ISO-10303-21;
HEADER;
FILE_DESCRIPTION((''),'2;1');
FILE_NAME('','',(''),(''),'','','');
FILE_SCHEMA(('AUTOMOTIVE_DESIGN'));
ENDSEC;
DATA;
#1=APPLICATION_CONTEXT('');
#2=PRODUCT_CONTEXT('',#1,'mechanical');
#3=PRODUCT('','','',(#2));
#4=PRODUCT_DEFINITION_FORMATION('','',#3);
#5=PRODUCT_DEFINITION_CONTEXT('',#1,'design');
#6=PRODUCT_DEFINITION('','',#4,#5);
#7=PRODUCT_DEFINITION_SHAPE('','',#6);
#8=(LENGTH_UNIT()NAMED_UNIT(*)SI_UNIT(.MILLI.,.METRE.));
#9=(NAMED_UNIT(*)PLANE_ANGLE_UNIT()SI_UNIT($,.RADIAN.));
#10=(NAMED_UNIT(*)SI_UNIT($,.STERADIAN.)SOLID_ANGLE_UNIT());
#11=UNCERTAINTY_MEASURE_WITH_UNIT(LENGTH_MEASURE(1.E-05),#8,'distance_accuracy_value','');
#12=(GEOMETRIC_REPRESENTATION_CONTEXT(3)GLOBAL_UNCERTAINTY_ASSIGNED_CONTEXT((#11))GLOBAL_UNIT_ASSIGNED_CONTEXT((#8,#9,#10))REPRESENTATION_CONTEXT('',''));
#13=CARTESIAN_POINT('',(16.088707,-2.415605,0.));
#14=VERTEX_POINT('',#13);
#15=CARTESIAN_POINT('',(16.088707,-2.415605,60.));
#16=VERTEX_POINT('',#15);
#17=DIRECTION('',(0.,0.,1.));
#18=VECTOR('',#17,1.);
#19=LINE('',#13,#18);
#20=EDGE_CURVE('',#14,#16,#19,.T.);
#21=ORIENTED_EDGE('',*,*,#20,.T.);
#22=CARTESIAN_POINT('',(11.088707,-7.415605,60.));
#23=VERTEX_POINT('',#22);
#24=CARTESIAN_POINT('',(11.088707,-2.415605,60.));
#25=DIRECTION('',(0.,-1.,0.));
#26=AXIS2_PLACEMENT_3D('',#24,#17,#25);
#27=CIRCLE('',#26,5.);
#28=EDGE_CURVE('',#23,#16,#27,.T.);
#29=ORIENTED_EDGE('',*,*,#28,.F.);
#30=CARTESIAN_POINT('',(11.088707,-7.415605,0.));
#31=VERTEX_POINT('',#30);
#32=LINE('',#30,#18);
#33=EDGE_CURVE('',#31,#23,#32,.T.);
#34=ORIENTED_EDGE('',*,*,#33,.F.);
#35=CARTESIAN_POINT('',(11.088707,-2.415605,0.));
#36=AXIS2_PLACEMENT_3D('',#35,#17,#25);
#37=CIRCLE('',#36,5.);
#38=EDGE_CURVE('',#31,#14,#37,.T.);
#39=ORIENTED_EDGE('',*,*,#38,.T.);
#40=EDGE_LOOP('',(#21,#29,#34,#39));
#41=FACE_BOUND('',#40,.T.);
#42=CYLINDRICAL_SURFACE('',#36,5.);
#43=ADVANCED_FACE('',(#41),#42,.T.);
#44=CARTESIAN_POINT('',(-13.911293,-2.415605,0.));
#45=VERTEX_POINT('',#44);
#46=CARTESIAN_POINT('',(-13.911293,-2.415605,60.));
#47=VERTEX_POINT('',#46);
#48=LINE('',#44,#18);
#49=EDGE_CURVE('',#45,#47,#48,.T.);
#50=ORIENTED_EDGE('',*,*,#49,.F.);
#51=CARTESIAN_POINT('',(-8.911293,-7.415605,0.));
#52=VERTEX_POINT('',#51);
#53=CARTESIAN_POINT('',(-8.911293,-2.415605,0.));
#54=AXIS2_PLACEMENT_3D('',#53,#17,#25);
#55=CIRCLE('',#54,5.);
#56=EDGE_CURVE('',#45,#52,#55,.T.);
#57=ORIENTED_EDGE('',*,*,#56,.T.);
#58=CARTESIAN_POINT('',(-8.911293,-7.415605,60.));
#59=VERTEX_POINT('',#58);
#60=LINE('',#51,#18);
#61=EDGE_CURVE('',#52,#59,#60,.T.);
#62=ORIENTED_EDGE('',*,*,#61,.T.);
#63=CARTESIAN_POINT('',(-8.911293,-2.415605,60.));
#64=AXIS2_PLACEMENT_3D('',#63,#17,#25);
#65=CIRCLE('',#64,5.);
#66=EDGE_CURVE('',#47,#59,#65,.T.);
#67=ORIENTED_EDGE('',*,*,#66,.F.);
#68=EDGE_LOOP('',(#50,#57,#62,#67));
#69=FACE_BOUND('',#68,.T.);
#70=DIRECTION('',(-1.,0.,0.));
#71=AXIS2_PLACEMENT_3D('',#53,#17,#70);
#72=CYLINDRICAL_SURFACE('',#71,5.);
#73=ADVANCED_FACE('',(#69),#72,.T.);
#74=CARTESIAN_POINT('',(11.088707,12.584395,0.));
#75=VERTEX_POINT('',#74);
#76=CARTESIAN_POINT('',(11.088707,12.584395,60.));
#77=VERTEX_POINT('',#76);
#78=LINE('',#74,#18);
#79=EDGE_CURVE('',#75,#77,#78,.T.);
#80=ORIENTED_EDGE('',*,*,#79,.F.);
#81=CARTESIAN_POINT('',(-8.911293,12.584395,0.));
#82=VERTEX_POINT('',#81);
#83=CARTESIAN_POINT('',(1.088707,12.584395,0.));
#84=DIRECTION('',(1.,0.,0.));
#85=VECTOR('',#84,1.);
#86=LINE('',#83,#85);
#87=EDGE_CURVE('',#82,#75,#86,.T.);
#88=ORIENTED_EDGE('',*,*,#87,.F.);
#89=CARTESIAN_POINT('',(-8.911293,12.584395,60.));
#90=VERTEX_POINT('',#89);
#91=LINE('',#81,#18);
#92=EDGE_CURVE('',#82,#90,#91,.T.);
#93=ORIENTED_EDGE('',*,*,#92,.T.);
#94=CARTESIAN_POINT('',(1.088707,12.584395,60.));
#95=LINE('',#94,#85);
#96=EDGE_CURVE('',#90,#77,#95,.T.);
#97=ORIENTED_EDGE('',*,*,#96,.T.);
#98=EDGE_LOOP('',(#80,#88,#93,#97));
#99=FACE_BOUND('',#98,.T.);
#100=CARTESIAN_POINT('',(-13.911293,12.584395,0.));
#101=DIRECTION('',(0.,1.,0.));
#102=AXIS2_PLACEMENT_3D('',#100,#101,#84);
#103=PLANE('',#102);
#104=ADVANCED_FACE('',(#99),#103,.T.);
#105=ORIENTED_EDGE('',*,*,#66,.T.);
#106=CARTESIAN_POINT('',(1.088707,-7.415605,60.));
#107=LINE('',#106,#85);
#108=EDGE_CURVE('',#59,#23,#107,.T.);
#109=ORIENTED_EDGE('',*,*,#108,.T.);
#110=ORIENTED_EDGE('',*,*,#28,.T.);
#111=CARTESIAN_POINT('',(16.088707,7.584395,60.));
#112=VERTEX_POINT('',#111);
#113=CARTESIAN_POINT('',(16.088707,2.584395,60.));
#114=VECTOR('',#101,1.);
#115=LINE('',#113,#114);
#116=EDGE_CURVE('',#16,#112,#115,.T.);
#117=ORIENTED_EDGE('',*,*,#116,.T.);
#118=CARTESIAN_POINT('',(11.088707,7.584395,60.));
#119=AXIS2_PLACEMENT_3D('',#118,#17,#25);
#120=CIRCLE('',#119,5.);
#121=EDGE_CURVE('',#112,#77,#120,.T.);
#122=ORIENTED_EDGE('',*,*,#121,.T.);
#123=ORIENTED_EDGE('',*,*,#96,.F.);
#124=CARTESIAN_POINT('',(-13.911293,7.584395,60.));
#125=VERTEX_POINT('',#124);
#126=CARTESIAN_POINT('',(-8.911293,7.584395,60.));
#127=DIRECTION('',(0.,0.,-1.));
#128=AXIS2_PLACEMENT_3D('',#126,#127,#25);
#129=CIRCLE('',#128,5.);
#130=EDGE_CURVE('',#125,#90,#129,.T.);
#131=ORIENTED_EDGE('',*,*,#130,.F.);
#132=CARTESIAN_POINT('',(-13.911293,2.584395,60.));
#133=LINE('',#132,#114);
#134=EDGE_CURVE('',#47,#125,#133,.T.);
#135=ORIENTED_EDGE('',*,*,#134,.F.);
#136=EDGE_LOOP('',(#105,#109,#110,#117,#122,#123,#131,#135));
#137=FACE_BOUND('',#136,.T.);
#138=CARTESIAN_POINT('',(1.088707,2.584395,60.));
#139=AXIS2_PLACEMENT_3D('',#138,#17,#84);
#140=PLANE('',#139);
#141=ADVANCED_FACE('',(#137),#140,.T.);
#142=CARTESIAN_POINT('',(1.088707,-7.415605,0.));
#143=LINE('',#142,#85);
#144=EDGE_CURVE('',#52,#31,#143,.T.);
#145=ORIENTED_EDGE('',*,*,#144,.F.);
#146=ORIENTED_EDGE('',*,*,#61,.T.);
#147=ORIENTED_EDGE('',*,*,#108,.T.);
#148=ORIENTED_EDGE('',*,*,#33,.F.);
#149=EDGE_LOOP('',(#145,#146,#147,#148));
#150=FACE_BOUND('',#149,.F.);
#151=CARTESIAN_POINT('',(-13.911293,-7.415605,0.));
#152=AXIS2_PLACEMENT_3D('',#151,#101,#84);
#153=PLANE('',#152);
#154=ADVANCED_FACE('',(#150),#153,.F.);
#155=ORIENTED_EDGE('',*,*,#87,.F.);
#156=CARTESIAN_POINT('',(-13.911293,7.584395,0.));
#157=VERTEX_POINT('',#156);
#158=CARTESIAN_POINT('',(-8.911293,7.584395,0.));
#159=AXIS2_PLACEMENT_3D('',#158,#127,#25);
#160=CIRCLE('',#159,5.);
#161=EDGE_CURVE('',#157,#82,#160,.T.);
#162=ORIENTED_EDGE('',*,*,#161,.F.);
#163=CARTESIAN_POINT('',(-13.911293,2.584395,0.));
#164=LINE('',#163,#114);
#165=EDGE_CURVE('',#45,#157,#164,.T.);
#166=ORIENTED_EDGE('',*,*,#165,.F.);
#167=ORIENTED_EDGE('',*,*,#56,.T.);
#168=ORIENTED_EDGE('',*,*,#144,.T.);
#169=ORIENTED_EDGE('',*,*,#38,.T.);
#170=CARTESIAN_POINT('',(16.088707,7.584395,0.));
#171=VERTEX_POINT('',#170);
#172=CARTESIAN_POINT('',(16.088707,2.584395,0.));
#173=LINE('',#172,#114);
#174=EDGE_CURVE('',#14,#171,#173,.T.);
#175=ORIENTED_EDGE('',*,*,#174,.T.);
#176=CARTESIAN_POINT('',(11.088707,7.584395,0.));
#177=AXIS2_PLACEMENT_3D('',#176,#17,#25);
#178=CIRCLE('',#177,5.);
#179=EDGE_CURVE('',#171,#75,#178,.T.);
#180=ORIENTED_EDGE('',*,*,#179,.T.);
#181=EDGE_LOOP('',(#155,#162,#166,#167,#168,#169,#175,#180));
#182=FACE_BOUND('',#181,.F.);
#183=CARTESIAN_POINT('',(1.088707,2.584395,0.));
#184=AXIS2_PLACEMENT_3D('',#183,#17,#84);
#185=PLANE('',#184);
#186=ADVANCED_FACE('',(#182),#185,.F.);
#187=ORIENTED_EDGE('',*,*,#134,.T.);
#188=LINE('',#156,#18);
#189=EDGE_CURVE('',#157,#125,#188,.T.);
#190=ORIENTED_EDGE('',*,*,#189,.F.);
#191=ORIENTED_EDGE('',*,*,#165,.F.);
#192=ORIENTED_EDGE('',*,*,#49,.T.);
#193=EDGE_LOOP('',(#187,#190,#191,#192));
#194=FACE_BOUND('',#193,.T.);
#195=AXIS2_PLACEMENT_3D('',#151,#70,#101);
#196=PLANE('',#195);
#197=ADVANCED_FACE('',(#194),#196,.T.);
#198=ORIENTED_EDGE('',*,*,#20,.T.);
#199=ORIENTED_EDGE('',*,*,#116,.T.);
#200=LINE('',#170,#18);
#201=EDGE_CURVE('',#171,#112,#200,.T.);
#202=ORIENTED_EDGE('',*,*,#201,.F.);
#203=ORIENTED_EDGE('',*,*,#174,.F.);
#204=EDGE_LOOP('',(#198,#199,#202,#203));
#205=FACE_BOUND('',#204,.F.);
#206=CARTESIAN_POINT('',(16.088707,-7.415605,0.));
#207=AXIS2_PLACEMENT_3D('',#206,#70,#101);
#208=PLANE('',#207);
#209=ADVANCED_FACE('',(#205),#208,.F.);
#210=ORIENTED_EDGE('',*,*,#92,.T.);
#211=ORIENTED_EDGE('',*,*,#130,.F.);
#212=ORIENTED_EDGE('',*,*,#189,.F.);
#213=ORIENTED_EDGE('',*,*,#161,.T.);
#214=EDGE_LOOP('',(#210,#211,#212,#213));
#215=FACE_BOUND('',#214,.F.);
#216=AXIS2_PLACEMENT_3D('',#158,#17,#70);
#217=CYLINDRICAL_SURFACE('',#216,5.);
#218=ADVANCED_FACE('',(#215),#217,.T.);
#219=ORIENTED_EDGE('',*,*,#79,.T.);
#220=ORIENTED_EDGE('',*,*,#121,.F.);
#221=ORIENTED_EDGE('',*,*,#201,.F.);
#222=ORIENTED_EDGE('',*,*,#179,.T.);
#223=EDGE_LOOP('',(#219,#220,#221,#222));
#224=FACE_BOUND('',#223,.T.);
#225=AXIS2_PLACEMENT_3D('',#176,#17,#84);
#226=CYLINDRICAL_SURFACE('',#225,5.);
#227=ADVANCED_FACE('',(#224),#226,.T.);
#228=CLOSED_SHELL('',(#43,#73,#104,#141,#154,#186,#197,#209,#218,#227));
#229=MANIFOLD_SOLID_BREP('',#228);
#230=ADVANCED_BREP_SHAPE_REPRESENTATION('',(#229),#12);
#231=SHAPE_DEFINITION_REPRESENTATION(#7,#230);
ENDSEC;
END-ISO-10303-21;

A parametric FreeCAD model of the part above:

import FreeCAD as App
import Part
import Sketcher
from FreeCAD import Vector


def edges_at(feature, points):
    """Names of the edges that pass closest to the given points."""
    edges = feature.Shape.Edges
    near = lambda p: min(range(len(edges)), key=lambda i: edges[i].distToShape(Part.Vertex(*p))[0])
    return sorted({f"Edge{near(p) + 1}" for p in points})

doc = App.newDocument("Part")
body = doc.addObject("PartDesign::Body", "Body")

sketch1 = body.newObject("Sketcher::SketchObject", "Sketch")
sketch1.AttachmentSupport = (doc.getObject("XY_Plane"), [""])
sketch1.MapMode = "FlatFace"
sketch1.addGeometry([
    Part.LineSegment(Vector(-13.911293, 12.584395, 0), Vector(-13.911293, -7.415605, 0)),
    Part.LineSegment(Vector(-13.911293, -7.415605, 0), Vector(16.088707, -7.415605, 0)),
    Part.LineSegment(Vector(16.088707, -7.415605, 0), Vector(16.088707, 12.584395, 0)),
    Part.LineSegment(Vector(16.088707, 12.584395, 0), Vector(-13.911293, 12.584395, 0)),
], False)
sketch1.addConstraint([
    Sketcher.Constraint("Coincident", 0, 2, 1, 1),
    Sketcher.Constraint("Coincident", 1, 2, 2, 1),
    Sketcher.Constraint("Coincident", 2, 2, 3, 1),
    Sketcher.Constraint("Coincident", 3, 2, 0, 1),
    Sketcher.Constraint("Vertical", 0),
    Sketcher.Constraint("Horizontal", 1),
    Sketcher.Constraint("Vertical", 2),
    Sketcher.Constraint("Horizontal", 3),
    Sketcher.Constraint("DistanceX", 1, 1, 1, 2, 30.0),
    Sketcher.Constraint("DistanceY", 0, 2, 0, 1, 20.0),
    Sketcher.Constraint("DistanceX", 0, 2, -1, 1, 13.911293),
    Sketcher.Constraint("DistanceY", 0, 2, -1, 1, 7.415605),
])
pad1 = body.newObject("PartDesign::Pad", "Pad")
pad1.Profile = sketch1
pad1.Length = 60
doc.recompute()

fillet = body.newObject("PartDesign::Fillet", "Fillet")
fillet.Base = (pad1, edges_at(pad1, [
    (-13.911, -7.416, 30),
    (-13.911, 12.584, 30),
    (16.089, -7.416, 30),
    (16.089, 12.584, 30),
]))
fillet.Radius = 5

doc.recompute()
